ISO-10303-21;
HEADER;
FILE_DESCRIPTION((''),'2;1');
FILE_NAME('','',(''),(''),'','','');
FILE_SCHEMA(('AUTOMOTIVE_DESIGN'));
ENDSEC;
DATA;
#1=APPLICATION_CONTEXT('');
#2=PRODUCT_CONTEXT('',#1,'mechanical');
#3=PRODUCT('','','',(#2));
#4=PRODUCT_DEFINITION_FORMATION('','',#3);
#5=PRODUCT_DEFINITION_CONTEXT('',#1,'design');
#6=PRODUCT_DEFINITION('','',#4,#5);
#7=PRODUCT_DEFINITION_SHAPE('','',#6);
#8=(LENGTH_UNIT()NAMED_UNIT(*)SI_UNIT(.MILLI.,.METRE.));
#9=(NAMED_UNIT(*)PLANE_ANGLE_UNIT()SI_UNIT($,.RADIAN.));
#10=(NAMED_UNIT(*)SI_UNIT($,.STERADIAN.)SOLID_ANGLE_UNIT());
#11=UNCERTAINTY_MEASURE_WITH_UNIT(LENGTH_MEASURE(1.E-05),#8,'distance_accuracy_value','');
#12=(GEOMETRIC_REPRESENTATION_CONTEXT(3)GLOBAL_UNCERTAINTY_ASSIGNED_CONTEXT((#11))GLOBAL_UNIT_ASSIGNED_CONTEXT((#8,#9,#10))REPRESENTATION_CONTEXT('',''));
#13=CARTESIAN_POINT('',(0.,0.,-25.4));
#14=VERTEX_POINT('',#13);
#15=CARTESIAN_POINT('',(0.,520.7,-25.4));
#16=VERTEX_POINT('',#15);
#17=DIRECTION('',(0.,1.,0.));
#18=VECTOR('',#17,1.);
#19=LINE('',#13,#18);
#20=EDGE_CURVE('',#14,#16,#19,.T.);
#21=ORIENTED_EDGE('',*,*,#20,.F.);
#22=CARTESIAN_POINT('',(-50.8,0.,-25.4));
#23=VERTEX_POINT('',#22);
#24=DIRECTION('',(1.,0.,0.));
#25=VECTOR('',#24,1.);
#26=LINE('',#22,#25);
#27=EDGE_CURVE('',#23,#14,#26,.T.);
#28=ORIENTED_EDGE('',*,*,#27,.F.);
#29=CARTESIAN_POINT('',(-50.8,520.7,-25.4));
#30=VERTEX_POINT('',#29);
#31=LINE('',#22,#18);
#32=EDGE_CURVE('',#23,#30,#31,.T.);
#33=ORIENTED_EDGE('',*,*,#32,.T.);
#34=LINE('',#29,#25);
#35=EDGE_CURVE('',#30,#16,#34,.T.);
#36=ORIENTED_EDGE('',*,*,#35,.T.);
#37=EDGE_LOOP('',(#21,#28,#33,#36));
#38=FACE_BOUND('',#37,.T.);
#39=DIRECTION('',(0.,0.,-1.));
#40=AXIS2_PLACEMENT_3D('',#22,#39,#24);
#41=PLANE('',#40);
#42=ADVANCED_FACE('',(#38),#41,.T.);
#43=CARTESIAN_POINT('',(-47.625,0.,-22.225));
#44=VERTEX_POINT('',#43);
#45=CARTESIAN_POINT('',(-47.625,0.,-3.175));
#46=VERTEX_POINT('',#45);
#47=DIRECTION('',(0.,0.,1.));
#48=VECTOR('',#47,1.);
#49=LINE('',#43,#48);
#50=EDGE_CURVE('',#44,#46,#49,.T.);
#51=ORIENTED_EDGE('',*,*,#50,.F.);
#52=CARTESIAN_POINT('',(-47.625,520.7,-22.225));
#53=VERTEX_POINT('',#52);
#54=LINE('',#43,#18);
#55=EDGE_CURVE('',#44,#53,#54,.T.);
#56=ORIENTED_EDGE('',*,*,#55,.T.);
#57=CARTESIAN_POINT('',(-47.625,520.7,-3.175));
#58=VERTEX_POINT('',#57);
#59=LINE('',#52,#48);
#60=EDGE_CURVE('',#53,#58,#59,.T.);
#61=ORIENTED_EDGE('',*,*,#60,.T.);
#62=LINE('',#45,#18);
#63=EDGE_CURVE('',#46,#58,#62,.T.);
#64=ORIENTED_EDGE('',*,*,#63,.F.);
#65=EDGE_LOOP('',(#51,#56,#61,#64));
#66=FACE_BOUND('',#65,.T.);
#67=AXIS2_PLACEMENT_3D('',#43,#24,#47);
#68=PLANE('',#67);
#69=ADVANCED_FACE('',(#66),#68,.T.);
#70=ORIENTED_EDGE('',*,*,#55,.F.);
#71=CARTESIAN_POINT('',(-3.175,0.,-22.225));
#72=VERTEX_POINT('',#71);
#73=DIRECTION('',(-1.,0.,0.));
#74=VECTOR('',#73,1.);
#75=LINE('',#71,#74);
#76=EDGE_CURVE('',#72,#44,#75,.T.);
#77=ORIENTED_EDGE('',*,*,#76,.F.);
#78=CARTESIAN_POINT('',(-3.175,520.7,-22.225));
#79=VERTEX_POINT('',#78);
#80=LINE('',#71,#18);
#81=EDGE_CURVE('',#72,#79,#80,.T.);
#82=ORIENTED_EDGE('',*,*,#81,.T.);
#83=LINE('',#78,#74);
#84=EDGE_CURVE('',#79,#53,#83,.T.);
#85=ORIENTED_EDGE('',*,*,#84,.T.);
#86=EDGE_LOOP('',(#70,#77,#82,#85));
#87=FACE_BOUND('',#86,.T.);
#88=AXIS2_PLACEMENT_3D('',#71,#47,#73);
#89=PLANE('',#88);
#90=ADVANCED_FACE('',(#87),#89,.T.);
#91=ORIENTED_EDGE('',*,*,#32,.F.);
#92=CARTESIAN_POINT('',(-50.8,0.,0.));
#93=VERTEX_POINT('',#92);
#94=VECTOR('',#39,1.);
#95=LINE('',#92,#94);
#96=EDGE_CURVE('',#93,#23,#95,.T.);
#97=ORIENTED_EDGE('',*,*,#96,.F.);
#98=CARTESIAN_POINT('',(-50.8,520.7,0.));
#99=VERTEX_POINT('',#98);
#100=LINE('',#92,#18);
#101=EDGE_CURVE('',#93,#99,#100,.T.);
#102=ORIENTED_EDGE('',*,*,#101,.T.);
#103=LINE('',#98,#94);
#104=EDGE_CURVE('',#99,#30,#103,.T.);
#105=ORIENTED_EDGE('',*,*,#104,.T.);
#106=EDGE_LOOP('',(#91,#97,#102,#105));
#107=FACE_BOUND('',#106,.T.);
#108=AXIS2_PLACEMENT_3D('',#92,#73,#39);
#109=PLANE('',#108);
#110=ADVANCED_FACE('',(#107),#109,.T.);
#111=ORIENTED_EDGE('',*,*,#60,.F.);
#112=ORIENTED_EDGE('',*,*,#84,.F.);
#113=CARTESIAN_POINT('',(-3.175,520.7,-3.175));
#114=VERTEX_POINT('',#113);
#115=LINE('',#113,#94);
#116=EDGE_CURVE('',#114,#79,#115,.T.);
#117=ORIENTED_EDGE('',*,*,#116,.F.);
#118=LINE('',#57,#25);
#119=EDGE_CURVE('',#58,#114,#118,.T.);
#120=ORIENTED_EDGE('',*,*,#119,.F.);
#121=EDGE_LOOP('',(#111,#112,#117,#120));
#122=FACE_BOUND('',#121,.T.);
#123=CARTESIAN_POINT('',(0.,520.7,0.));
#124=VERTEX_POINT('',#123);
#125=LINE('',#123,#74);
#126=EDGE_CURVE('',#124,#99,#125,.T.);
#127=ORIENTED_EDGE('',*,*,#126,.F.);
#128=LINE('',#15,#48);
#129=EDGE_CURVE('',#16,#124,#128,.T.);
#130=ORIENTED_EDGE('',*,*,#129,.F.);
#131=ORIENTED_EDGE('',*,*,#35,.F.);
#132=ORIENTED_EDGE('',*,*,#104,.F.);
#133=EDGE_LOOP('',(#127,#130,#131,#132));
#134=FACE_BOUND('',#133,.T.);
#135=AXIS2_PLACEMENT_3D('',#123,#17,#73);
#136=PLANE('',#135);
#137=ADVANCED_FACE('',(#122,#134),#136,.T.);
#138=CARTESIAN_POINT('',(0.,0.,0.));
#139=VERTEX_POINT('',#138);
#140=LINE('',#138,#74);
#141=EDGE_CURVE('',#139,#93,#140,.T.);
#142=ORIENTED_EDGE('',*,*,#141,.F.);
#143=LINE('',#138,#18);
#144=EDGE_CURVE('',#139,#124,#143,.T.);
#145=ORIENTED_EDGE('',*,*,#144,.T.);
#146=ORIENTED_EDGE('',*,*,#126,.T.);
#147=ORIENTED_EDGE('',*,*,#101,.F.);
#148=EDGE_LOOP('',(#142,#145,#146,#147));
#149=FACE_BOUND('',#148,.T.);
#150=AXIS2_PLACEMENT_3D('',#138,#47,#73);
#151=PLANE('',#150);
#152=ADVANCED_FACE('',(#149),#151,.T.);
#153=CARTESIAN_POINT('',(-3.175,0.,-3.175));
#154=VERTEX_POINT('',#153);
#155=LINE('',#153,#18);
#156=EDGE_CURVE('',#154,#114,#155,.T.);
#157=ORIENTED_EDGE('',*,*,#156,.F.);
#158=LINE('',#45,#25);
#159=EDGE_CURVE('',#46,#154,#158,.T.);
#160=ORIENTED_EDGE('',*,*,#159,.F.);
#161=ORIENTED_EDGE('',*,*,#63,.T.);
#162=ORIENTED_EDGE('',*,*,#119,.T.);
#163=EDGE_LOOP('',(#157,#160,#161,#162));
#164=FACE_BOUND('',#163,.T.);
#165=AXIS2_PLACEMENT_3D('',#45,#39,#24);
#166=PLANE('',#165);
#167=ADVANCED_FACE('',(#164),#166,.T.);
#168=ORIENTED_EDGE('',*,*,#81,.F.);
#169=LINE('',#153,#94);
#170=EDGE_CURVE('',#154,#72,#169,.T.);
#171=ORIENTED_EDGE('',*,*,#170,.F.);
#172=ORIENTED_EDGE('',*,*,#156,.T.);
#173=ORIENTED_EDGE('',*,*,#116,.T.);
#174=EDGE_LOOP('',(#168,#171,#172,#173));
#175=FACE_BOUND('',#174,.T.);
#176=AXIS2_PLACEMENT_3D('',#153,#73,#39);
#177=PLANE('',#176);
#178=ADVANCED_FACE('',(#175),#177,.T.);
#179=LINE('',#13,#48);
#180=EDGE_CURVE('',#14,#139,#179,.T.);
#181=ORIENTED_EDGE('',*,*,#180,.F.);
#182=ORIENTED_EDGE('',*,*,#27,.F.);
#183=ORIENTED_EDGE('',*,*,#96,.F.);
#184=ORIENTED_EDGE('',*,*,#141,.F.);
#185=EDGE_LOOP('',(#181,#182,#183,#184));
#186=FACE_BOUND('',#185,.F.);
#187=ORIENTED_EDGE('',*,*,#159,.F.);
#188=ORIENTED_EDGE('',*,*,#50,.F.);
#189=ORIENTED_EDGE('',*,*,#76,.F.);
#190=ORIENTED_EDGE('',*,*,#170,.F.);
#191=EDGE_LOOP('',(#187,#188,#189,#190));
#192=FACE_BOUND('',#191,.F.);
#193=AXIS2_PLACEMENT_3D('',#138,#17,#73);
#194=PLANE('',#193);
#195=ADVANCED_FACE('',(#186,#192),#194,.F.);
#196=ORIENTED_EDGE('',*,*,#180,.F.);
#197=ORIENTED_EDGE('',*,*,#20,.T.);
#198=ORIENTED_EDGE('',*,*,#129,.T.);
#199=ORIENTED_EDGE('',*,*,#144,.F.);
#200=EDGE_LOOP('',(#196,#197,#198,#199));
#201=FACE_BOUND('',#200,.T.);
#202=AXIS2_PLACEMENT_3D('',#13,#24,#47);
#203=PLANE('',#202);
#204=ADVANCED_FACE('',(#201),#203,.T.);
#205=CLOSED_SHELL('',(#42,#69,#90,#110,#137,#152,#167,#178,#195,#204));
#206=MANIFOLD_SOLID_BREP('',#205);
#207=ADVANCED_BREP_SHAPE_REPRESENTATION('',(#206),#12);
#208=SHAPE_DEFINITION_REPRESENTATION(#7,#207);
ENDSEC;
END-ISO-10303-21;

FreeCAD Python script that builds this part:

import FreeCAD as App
import Part
import Sketcher
Q = App.Units.Quantity

doc = App.newDocument("Part")
body = doc.addObject("PartDesign::Body", "Body")

# Sketch on XZ plane
sketch1 = body.newObject("Sketcher::SketchObject", "Sketch")
sketch1.AttachmentSupport = (doc.getObject("XZ_Plane"), [""])
sketch1.MapMode = "FlatFace"
sketch1.addGeometry(Part.LineSegment(App.Vector(-50.8, 0, 0), App.Vector(0, 0, 0)), False)
sketch1.addGeometry(Part.LineSegment(App.Vector(0, 0, 0), App.Vector(0, -25.4, 0)), False)
sketch1.addGeometry(Part.LineSegment(App.Vector(0, -25.4, 0), App.Vector(-50.8, -25.4, 0)), False)
sketch1.addGeometry(Part.LineSegment(App.Vector(-50.8, -25.4, 0), App.Vector(-50.8, 0, 0)), False)
sketch1.addGeometry(Part.LineSegment(App.Vector(-3.175, -3.175, 0), App.Vector(-47.625, -3.175, 0)), False)
sketch1.addGeometry(Part.LineSegment(App.Vector(-47.625, -3.175, 0), App.Vector(-47.625, -22.225, 0)), False)
sketch1.addGeometry(Part.LineSegment(App.Vector(-47.625, -22.225, 0), App.Vector(-3.175, -22.225, 0)), False)
sketch1.addGeometry(Part.LineSegment(App.Vector(-3.175, -22.225, 0), App.Vector(-3.175, -3.175, 0)), False)
sketch1.addConstraint(Sketcher.Constraint("Coincident", 0, 2, 1, 1))
sketch1.addConstraint(Sketcher.Constraint("Coincident", 1, 2, 2, 1))
sketch1.addConstraint(Sketcher.Constraint("Coincident", 2, 2, 3, 1))
sketch1.addConstraint(Sketcher.Constraint("Coincident", 3, 2, 0, 1))
sketch1.addConstraint(Sketcher.Constraint("Coincident", 4, 2, 5, 1))
sketch1.addConstraint(Sketcher.Constraint("Coincident", 5, 2, 6, 1))
sketch1.addConstraint(Sketcher.Constraint("Coincident", 6, 2, 7, 1))
sketch1.addConstraint(Sketcher.Constraint("Coincident", 7, 2, 4, 1))
sketch1.addConstraint(Sketcher.Constraint("Horizontal", 0))
sketch1.addConstraint(Sketcher.Constraint("Vertical", 1))
sketch1.addConstraint(Sketcher.Constraint("Horizontal", 2))
sketch1.addConstraint(Sketcher.Constraint("Vertical", 3))
sketch1.addConstraint(Sketcher.Constraint("Horizontal", 4))
sketch1.addConstraint(Sketcher.Constraint("Vertical", 5))
sketch1.addConstraint(Sketcher.Constraint("Horizontal", 6))
sketch1.addConstraint(Sketcher.Constraint("Vertical", 7))
sketch1.addConstraint(Sketcher.Constraint("Coincident", 0, 2, -1, 1))
sketch1.addConstraint(Sketcher.Constraint("DistanceX", 0, 1, 0, 2, Q("2 in")))
sketch1.addConstraint(Sketcher.Constraint("DistanceY", 1, 2, 1, 1, Q("1 in")))
sketch1.addConstraint(Sketcher.Constraint("DistanceY", 4, 2, -1, 1, Q("0.125 in")))
sketch1.addConstraint(Sketcher.Constraint("DistanceX", 6, 2, -1, 1, Q("0.125 in")))
sketch1.addConstraint(Sketcher.Constraint("DistanceX", 3, 2, 4, 2, Q("0.125 in")))
sketch1.addConstraint(Sketcher.Constraint("DistanceY", 2, 2, 5, 2, Q("0.125 in")))
pad1 = body.newObject("PartDesign::Pad", "Pad")
pad1.Profile = sketch1
pad1.Length = Q("20.5 in")
pad1.Reversed = True

doc.recompute()
